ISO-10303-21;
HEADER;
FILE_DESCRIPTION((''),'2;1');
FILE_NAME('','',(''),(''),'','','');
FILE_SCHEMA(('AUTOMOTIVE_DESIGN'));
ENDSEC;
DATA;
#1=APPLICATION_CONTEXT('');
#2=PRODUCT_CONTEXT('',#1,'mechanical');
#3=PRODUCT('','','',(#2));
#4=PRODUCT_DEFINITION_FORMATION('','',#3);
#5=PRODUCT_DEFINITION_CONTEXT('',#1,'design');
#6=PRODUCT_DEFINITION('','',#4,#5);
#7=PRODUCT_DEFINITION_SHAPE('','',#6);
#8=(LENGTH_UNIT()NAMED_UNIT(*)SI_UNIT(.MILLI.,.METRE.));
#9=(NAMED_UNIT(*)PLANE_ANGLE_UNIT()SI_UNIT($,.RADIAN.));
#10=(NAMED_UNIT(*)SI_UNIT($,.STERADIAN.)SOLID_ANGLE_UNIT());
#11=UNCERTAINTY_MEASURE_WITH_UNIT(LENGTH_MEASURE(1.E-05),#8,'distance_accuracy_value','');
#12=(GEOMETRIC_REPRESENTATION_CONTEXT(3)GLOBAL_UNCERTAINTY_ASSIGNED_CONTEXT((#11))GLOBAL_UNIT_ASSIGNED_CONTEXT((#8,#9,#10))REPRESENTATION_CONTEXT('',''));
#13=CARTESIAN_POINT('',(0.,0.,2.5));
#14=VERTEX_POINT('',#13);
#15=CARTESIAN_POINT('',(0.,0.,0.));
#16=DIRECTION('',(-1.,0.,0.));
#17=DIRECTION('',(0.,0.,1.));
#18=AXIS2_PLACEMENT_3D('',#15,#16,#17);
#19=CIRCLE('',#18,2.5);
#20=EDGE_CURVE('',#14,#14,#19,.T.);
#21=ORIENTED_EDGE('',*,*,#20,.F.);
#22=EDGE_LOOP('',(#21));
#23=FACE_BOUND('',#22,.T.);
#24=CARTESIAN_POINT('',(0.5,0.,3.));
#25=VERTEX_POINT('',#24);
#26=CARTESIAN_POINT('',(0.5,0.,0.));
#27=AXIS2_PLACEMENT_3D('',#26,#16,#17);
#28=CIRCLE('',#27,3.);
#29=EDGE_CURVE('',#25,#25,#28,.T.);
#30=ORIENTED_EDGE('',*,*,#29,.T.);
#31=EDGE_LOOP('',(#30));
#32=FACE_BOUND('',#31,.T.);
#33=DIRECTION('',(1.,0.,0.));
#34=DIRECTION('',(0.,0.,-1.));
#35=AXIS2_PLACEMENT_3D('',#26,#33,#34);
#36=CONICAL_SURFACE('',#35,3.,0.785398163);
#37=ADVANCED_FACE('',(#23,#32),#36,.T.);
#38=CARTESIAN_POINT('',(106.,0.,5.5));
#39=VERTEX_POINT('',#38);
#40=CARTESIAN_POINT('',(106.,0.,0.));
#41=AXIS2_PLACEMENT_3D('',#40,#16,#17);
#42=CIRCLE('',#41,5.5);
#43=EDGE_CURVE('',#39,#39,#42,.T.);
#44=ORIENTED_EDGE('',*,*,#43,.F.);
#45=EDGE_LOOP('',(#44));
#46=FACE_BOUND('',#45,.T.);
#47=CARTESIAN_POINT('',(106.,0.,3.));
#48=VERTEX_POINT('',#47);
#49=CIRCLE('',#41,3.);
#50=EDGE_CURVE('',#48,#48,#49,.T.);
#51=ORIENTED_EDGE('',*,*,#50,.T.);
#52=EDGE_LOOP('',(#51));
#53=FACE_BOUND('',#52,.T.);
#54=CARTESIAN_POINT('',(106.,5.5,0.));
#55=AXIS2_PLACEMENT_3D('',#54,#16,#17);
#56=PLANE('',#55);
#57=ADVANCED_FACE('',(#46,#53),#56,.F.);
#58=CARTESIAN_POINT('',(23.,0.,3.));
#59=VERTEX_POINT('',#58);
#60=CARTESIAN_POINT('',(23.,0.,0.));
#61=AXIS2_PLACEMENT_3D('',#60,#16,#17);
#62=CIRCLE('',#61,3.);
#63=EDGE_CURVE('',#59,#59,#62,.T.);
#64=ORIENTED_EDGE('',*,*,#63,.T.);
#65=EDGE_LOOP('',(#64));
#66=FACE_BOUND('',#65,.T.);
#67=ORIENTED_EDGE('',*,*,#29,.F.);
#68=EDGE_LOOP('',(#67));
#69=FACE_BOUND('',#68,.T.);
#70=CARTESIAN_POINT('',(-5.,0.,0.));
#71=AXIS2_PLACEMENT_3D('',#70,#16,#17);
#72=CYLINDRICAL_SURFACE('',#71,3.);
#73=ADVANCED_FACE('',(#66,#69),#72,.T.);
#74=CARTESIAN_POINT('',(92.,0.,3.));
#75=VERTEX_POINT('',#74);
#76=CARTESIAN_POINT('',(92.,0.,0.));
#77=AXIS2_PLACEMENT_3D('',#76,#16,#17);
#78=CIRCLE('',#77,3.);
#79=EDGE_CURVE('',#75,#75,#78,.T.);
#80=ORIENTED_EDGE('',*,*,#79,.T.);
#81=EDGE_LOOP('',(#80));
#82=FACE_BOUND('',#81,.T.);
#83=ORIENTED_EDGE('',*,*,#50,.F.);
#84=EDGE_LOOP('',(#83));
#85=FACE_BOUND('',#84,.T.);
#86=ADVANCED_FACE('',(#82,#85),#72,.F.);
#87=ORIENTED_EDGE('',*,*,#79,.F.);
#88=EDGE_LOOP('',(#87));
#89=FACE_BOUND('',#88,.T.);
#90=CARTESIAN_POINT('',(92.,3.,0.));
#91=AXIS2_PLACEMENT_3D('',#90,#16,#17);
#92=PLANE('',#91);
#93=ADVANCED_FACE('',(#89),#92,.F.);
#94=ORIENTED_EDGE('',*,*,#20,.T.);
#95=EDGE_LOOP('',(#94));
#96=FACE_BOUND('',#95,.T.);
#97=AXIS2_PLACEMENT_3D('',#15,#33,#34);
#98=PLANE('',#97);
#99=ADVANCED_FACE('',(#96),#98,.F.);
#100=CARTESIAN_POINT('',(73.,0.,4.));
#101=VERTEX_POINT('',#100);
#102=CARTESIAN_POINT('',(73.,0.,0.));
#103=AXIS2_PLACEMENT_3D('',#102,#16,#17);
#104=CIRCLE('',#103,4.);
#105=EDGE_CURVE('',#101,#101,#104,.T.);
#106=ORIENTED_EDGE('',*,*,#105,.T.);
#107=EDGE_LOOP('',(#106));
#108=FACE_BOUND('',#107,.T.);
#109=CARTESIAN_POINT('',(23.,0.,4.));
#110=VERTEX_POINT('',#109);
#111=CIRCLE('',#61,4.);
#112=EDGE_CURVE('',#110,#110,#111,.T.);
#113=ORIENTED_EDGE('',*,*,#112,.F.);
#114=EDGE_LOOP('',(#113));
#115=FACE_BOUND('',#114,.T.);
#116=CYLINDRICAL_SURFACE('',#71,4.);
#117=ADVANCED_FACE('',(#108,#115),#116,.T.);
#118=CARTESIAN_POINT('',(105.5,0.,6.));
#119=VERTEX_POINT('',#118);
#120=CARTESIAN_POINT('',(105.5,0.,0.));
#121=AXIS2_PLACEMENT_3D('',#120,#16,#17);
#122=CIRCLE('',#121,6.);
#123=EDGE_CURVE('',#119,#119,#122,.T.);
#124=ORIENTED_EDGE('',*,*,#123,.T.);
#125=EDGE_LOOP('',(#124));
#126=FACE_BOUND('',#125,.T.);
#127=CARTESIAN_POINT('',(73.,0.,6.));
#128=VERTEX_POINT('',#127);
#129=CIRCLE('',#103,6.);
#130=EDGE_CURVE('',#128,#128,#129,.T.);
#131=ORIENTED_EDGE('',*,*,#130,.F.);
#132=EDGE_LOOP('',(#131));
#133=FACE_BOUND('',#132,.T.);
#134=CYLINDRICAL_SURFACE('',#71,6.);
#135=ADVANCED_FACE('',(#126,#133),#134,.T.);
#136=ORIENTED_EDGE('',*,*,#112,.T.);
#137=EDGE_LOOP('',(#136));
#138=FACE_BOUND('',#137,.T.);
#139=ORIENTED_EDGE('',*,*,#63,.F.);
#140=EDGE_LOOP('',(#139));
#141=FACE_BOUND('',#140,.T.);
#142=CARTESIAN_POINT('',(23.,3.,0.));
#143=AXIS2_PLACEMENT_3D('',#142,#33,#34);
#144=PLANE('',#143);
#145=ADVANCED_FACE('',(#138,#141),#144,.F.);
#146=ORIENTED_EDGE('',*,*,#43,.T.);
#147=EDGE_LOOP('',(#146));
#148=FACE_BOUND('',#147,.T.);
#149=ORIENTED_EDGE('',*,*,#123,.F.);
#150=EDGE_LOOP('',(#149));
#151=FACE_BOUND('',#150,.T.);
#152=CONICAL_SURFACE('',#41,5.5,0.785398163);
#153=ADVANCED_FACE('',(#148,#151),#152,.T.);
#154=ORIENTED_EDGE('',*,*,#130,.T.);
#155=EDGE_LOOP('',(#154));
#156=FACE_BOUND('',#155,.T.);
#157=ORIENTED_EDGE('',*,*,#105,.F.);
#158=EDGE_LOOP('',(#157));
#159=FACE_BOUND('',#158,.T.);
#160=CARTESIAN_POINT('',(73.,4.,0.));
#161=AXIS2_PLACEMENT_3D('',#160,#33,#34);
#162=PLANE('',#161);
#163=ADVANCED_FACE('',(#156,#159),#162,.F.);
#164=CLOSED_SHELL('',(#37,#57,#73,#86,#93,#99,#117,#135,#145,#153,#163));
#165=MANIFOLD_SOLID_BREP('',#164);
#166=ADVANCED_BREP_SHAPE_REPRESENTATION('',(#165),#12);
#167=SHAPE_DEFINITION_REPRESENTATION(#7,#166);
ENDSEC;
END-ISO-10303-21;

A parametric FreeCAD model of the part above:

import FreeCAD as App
import Part
import Sketcher

V = App.Vector


def add_polygon(sketch, points):
    """Adds a closed chain of lines whose ends are joined by coincident constraints."""
    first, n = sketch.GeometryCount, len(points)
    for a, b in zip(points, points[1:] + points[:1]):
        sketch.addGeometry(Part.LineSegment(App.Vector(*a, 0), App.Vector(*b, 0)), False)
    for i in range(n):
        sketch.addConstraint(Sketcher.Constraint("Coincident", first + i, 2, first + (i + 1) % n, 1))

doc = App.newDocument("Part")
body = doc.addObject("PartDesign::Body", "Body")

sketch1 = body.newObject("Sketcher::SketchObject", "Sketch")
sketch1.AttachmentSupport = (doc.getObject("XY_Plane"), [""])
sketch1.MapMode = "FlatFace"
add_polygon(sketch1, [(0, 2.5), (0, 0), (92, 0), (92, 3), (106, 3), (106, 5.5), (105.5, 6), (73, 6), (73, 4), (23, 4), (23, 3), (0.5, 3)])
sketch1.addConstraint(Sketcher.Constraint("Vertical", 0))
sketch1.addConstraint(Sketcher.Constraint("Horizontal", 1))
sketch1.addConstraint(Sketcher.Constraint("Vertical", 2))
sketch1.addConstraint(Sketcher.Constraint("Horizontal", 3))
sketch1.addConstraint(Sketcher.Constraint("Vertical", 4))
sketch1.addConstraint(Sketcher.Constraint("Horizontal", 6))
sketch1.addConstraint(Sketcher.Constraint("Vertical", 7))
sketch1.addConstraint(Sketcher.Constraint("Horizontal", 8))
sketch1.addConstraint(Sketcher.Constraint("Vertical", 9))
sketch1.addConstraint(Sketcher.Constraint("Horizontal", 10))
sketch1.addConstraint(Sketcher.Constraint("Coincident", 0, 2, -1, 1))
sketch1.addConstraint(Sketcher.Constraint("Perpendicular", 5, 11))
sketch1.addConstraint(Sketcher.Constraint("Horizontal", 3, 2, 9, 2))
sketch1.addConstraint(Sketcher.Constraint("Equal", 0, 4))
sketch1.addConstraint(Sketcher.Constraint("Equal", 5, 11))
sketch1.addConstraint(Sketcher.Constraint("DistanceX", 1, 1, 1, 2, 92.0))
sketch1.addConstraint(Sketcher.Constraint("DistanceX", 3, 1, 3, 2, 14.0))
sketch1.addConstraint(Sketcher.Constraint("DistanceX", 8, 2, 8, 1, 50.0))
sketch1.addConstraint(Sketcher.Constraint("DistanceY", 2, 1, 2, 2, 3.0))
sketch1.addConstraint(Sketcher.Constraint("DistanceY", 7, 2, 7, 1, 2.0))
sketch1.addConstraint(Sketcher.Constraint("DistanceY", 9, 2, 9, 1, 1.0))
sketch1.addConstraint(Sketcher.Constraint("DistanceX", 6, 2, 6, 1, 32.5))
sketch1.addConstraint(Sketcher.Constraint("DistanceX", 10, 2, 10, 1, 22.5))
revolution = body.newObject("PartDesign::Revolution", "Revolution")
revolution.Profile = sketch1
revolution.ReferenceAxis = (sketch1, ["H_Axis"])
revolution.Angle = 360

doc.recompute()
